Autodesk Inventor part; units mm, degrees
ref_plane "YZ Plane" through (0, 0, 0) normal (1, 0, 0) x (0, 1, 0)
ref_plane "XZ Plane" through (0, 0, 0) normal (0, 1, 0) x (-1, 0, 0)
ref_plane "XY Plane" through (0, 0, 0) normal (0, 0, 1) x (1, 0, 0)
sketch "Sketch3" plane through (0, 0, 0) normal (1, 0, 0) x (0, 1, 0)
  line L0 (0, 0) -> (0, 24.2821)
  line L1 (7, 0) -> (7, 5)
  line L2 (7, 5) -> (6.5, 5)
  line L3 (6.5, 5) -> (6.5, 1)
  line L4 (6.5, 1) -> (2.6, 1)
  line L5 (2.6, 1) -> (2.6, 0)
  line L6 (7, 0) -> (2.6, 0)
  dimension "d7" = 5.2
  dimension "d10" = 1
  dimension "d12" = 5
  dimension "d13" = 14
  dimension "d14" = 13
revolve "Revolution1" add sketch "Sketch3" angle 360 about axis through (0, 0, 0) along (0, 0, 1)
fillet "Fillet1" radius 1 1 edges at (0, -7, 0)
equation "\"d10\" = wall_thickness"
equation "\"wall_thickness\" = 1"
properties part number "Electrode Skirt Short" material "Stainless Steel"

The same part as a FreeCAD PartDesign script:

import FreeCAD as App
import Part
import Sketcher
from FreeCAD import Vector


def edges_at(feature, points):
    """Names of the edges that pass closest to the given points."""
    edges = feature.Shape.Edges
    near = lambda p: min(range(len(edges)), key=lambda i: edges[i].distToShape(Part.Vertex(*p))[0])
    return sorted({f"Edge{near(p) + 1}" for p in points})


def add_polygon(sketch, points):
    """Adds a closed chain of lines whose ends are joined by coincident constraints."""
    first, n = sketch.GeometryCount, len(points)
    for a, b in zip(points, points[1:] + points[:1]):
        sketch.addGeometry(Part.LineSegment(App.Vector(*a, 0), App.Vector(*b, 0)), False)
    for i in range(n):
        sketch.addConstraint(Sketcher.Constraint("Coincident", first + i, 2, first + (i + 1) % n, 1))

doc = App.newDocument("Part")
body = doc.addObject("PartDesign::Body", "Body")

# Sketch on YZ plane
sketch1 = doc.addObject("Sketcher::SketchObject", "Sketch")
body.addObject(sketch1)
sketch1.AttachmentSupport = (doc.YZ_Plane, [""])
sketch1.MapMode = "FlatFace"
add_polygon(sketch1, [(2.6, 0), (7, 0), (7, 5), (6.5, 5), (6.5, 1), (2.6, 1)])  # lines 0-5
sketch1.addConstraint([
    Sketcher.Constraint("Horizontal", 0),
    Sketcher.Constraint("Vertical", 1),
    Sketcher.Constraint("Horizontal", 2),
    Sketcher.Constraint("Vertical", 3),
    Sketcher.Constraint("Horizontal", 4),
    Sketcher.Constraint("Vertical", 5),
    Sketcher.Constraint("PointOnObject", 0, 2, -1),
    Sketcher.Constraint("DistanceY", 1, 1, 1, 2, 5.0),
    Sketcher.Constraint("DistanceY", 5, 2, 5, 1, 1.0),
    Sketcher.Constraint("DistanceX", 0, 1, 0, 2, 4.4),
    Sketcher.Constraint("DistanceX", 2, 2, 2, 1, 0.5),
    Sketcher.Constraint("DistanceX", -1, 1, 0, 2, 7.0),
])
revolution = doc.addObject("PartDesign::Revolution", "Revolution")
body.addObject(revolution)
revolution.Profile = sketch1
revolution.ReferenceAxis = (sketch1, ["V_Axis"])
revolution.Angle = 360
doc.recompute()

fillet = doc.addObject("PartDesign::Fillet", "Fillet")
body.addObject(fillet)
fillet.Base = (revolution, edges_at(revolution, [(0, -7, 0)]))
fillet.Radius = 1

doc.recompute()
